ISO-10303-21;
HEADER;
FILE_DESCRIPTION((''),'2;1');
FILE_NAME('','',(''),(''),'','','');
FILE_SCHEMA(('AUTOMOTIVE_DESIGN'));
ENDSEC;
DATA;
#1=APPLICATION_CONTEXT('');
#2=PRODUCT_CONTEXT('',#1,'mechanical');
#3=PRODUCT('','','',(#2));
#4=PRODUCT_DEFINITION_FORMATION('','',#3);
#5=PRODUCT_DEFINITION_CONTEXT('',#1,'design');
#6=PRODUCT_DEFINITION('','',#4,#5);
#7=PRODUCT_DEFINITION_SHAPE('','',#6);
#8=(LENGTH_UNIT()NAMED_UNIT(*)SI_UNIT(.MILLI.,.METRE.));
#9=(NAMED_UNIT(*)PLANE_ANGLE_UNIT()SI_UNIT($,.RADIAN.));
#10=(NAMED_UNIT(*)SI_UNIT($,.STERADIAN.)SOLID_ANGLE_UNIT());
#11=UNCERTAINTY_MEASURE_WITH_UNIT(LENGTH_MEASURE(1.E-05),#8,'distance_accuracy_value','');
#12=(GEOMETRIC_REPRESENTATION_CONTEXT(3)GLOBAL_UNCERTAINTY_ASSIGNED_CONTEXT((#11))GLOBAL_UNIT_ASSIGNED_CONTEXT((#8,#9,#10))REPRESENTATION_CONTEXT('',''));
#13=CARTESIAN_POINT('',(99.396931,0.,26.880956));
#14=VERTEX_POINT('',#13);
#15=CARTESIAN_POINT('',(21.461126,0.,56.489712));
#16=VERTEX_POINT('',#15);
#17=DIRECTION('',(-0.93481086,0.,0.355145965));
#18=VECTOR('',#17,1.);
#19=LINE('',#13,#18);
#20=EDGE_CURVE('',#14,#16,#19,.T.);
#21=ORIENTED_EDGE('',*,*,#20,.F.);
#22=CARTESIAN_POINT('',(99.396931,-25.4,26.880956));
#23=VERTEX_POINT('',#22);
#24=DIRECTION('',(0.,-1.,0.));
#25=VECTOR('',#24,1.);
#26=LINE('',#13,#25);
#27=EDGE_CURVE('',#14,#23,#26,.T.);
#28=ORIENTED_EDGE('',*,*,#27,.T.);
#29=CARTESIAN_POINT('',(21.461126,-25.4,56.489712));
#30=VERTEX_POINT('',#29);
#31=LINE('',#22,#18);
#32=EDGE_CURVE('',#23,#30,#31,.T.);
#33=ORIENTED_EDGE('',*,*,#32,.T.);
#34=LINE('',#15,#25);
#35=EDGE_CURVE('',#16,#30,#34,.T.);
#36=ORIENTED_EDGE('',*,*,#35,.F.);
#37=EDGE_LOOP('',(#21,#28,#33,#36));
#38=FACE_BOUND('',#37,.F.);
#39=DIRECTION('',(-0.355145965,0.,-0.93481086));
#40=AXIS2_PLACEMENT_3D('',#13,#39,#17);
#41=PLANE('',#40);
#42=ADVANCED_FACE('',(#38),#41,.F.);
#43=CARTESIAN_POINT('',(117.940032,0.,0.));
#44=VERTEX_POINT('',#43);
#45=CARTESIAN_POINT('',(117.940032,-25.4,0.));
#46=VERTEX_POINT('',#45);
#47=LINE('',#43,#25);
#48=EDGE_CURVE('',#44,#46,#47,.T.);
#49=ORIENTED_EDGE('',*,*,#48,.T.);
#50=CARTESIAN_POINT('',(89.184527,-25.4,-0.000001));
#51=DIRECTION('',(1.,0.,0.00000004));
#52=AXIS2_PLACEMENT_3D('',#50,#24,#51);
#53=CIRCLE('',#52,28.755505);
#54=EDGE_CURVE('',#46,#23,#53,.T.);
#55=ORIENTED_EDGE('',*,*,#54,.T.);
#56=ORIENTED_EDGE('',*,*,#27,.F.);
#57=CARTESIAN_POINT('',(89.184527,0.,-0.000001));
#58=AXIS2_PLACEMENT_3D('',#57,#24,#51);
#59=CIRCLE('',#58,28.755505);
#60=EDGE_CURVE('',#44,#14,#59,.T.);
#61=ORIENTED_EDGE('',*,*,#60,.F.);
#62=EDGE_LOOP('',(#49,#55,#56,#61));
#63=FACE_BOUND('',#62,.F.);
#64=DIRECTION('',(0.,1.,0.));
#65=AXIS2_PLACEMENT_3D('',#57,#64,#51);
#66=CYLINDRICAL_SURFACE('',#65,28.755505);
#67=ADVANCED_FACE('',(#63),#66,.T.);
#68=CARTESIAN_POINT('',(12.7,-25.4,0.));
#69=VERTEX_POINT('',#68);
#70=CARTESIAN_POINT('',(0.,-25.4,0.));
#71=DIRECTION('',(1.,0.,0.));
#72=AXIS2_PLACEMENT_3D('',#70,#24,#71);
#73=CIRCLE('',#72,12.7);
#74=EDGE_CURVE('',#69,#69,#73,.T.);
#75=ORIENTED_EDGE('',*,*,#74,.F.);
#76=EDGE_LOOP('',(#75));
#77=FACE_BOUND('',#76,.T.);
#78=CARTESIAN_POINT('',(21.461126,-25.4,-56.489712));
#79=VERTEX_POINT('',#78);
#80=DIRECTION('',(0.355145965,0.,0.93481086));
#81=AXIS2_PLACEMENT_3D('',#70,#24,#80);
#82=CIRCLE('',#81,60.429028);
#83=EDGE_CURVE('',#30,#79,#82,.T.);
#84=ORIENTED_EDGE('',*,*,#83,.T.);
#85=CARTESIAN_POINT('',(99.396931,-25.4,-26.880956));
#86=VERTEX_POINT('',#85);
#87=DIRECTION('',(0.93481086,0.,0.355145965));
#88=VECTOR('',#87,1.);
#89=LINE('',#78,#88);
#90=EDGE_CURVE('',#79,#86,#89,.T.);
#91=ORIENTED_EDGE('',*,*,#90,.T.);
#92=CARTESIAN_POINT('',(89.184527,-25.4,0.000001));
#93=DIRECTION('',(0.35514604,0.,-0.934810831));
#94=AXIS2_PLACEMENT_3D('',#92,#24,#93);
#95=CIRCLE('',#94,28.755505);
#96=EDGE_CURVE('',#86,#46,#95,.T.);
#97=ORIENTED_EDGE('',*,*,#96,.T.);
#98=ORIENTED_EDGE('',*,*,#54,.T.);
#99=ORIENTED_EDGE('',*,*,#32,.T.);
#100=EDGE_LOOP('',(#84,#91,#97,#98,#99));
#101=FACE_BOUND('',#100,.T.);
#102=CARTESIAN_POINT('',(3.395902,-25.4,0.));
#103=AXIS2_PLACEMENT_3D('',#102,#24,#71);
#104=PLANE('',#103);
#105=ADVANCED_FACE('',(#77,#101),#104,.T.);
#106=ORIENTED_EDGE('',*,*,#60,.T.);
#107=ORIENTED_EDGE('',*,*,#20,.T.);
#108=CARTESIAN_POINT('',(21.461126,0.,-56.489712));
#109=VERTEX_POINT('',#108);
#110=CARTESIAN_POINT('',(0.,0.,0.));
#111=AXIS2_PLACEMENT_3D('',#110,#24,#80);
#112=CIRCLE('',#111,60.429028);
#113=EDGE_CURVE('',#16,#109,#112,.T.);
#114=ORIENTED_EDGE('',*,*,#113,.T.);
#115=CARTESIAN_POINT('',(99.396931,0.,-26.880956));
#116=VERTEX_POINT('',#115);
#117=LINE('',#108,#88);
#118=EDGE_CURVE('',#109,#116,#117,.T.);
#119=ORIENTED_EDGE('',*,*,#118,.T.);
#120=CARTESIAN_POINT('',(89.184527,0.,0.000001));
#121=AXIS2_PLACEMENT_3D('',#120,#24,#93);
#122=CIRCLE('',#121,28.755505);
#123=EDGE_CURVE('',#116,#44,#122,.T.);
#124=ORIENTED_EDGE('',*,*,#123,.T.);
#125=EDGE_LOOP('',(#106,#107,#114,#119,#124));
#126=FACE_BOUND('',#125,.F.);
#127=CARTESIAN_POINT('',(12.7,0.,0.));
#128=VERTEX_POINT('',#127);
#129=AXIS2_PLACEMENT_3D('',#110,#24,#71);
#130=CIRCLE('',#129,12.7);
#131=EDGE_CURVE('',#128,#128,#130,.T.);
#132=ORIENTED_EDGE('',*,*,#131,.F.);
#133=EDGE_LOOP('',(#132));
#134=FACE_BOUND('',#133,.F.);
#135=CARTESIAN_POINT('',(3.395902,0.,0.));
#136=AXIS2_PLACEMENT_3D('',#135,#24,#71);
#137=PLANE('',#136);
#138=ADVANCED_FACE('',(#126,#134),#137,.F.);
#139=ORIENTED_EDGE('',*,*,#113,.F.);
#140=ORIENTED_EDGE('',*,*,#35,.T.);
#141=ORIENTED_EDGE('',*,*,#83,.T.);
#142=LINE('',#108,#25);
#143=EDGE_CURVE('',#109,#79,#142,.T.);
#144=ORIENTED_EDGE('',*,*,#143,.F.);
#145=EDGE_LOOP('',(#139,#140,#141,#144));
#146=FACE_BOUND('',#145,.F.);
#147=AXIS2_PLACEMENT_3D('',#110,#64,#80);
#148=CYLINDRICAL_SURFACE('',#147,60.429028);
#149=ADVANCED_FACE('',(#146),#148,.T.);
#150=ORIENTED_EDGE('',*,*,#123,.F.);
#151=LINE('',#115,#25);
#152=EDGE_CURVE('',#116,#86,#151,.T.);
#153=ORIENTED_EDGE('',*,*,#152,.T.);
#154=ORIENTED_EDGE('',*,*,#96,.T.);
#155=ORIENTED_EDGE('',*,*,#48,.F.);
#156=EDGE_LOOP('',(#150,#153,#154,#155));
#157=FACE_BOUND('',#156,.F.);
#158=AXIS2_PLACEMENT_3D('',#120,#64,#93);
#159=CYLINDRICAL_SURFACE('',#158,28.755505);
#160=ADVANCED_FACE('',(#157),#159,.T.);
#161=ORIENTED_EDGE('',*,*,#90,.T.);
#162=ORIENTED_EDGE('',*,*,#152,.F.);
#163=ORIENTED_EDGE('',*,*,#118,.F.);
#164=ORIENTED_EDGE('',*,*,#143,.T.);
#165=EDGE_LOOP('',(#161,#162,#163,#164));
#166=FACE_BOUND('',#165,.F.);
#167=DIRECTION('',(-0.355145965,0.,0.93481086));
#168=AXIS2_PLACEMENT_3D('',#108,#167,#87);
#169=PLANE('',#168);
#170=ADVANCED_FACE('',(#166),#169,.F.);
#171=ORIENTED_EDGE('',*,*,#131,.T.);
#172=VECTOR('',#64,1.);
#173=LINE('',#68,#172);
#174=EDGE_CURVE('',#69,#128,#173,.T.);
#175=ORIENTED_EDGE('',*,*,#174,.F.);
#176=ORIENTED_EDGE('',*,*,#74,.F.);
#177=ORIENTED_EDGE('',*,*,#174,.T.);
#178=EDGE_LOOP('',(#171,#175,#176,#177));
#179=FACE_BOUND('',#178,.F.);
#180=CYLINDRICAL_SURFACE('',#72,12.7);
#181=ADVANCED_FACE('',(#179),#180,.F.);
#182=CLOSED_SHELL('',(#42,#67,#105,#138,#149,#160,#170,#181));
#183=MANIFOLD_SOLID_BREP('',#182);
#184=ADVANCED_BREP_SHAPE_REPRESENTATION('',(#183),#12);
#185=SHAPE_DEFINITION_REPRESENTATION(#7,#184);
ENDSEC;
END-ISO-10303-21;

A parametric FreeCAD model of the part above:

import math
import FreeCAD as App
import Part
import Sketcher
Q = App.Units.Quantity

doc = App.newDocument("Part")
body = doc.addObject("PartDesign::Body", "Body")

# Sketch on XZ plane
sketch1 = doc.addObject("Sketcher::SketchObject", "Sketch")
body.addObject(sketch1)
sketch1.AttachmentSupport = (doc.XZ_Plane, [""])
sketch1.MapMode = "FlatFace"
sketch1.addGeometry(Part.LineSegment(App.Vector(99, 27, 0), App.Vector(21, 56, 0)), False)
sketch1.addGeometry(Part.ArcOfCircle(Part.Circle(App.Vector(0, 0, 0), App.Vector(0, 0, 1), 60), math.radians(69), math.radians(291)), False)
sketch1.addGeometry(Part.LineSegment(App.Vector(21, -56, 0), App.Vector(99, -27, 0)), False)
sketch1.addGeometry(Part.ArcOfCircle(Part.Circle(App.Vector(89, 0, 0), App.Vector(0, 0, 1), 29), math.radians(-69), math.radians(0)), False)
sketch1.addGeometry(Part.ArcOfCircle(Part.Circle(App.Vector(89, 0, 0), App.Vector(0, 0, 1), 29), math.radians(0), math.radians(69)), False)
sketch1.addConstraint(Sketcher.Constraint("Tangent", 0, 2, 1, 1))
sketch1.addConstraint(Sketcher.Constraint("Tangent", 1, 2, 2, 1))
sketch1.addConstraint(Sketcher.Constraint("Tangent", 2, 2, 3, 1))
sketch1.addConstraint(Sketcher.Constraint("Tangent", 3, 2, 4, 1))
sketch1.addConstraint(Sketcher.Constraint("Tangent", 4, 2, 0, 1))
sketch1.addConstraint(Sketcher.Constraint("Coincident", 1, 3, -1, 1))
sketch1.addConstraint(Sketcher.Constraint("Equal", 3, 4))
sketch1.addConstraint(Sketcher.Constraint("PointOnObject", 3, 3, -1))
sketch1.addConstraint(Sketcher.Constraint("PointOnObject", 3, 2, -1))
sketch1.addConstraint(Sketcher.Constraint("Radius", 1, Q("60.429028 mm")))
sketch1.addConstraint(Sketcher.Constraint("Radius", 3, Q("28.755505 mm")))
sketch1.addConstraint(Sketcher.Constraint("DistanceX", 0, 2, 3, 3, Q("67.723401 mm")))
pad1 = doc.addObject("PartDesign::Pad", "Pad")
body.addObject(pad1)
pad1.Profile = sketch1
pad1.Length = Q("1 in")

# Sketch on XZ plane
sketch2 = doc.addObject("Sketcher::SketchObject", "Sketch001")
body.addObject(sketch2)
sketch2.AttachmentSupport = (doc.XZ_Plane, [""])
sketch2.MapMode = "FlatFace"
sketch2.AttachmentOffset = App.Placement(App.Vector(0, 0, 1 * 25.4), App.Rotation())
sketch2.addGeometry(Part.Circle(App.Vector(0, 0, 0), App.Vector(0, 0, 1), 13), False)
sketch2.addConstraint(Sketcher.Constraint("Coincident", 0, 3, -1, 1))
sketch2.addConstraint(Sketcher.Constraint("Diameter", 0, Q("1 in")))
pocket1 = doc.addObject("PartDesign::Pocket", "Pocket")
body.addObject(pocket1)
pocket1.Profile = sketch2
pocket1.Type = "ThroughAll"

doc.recompute()
